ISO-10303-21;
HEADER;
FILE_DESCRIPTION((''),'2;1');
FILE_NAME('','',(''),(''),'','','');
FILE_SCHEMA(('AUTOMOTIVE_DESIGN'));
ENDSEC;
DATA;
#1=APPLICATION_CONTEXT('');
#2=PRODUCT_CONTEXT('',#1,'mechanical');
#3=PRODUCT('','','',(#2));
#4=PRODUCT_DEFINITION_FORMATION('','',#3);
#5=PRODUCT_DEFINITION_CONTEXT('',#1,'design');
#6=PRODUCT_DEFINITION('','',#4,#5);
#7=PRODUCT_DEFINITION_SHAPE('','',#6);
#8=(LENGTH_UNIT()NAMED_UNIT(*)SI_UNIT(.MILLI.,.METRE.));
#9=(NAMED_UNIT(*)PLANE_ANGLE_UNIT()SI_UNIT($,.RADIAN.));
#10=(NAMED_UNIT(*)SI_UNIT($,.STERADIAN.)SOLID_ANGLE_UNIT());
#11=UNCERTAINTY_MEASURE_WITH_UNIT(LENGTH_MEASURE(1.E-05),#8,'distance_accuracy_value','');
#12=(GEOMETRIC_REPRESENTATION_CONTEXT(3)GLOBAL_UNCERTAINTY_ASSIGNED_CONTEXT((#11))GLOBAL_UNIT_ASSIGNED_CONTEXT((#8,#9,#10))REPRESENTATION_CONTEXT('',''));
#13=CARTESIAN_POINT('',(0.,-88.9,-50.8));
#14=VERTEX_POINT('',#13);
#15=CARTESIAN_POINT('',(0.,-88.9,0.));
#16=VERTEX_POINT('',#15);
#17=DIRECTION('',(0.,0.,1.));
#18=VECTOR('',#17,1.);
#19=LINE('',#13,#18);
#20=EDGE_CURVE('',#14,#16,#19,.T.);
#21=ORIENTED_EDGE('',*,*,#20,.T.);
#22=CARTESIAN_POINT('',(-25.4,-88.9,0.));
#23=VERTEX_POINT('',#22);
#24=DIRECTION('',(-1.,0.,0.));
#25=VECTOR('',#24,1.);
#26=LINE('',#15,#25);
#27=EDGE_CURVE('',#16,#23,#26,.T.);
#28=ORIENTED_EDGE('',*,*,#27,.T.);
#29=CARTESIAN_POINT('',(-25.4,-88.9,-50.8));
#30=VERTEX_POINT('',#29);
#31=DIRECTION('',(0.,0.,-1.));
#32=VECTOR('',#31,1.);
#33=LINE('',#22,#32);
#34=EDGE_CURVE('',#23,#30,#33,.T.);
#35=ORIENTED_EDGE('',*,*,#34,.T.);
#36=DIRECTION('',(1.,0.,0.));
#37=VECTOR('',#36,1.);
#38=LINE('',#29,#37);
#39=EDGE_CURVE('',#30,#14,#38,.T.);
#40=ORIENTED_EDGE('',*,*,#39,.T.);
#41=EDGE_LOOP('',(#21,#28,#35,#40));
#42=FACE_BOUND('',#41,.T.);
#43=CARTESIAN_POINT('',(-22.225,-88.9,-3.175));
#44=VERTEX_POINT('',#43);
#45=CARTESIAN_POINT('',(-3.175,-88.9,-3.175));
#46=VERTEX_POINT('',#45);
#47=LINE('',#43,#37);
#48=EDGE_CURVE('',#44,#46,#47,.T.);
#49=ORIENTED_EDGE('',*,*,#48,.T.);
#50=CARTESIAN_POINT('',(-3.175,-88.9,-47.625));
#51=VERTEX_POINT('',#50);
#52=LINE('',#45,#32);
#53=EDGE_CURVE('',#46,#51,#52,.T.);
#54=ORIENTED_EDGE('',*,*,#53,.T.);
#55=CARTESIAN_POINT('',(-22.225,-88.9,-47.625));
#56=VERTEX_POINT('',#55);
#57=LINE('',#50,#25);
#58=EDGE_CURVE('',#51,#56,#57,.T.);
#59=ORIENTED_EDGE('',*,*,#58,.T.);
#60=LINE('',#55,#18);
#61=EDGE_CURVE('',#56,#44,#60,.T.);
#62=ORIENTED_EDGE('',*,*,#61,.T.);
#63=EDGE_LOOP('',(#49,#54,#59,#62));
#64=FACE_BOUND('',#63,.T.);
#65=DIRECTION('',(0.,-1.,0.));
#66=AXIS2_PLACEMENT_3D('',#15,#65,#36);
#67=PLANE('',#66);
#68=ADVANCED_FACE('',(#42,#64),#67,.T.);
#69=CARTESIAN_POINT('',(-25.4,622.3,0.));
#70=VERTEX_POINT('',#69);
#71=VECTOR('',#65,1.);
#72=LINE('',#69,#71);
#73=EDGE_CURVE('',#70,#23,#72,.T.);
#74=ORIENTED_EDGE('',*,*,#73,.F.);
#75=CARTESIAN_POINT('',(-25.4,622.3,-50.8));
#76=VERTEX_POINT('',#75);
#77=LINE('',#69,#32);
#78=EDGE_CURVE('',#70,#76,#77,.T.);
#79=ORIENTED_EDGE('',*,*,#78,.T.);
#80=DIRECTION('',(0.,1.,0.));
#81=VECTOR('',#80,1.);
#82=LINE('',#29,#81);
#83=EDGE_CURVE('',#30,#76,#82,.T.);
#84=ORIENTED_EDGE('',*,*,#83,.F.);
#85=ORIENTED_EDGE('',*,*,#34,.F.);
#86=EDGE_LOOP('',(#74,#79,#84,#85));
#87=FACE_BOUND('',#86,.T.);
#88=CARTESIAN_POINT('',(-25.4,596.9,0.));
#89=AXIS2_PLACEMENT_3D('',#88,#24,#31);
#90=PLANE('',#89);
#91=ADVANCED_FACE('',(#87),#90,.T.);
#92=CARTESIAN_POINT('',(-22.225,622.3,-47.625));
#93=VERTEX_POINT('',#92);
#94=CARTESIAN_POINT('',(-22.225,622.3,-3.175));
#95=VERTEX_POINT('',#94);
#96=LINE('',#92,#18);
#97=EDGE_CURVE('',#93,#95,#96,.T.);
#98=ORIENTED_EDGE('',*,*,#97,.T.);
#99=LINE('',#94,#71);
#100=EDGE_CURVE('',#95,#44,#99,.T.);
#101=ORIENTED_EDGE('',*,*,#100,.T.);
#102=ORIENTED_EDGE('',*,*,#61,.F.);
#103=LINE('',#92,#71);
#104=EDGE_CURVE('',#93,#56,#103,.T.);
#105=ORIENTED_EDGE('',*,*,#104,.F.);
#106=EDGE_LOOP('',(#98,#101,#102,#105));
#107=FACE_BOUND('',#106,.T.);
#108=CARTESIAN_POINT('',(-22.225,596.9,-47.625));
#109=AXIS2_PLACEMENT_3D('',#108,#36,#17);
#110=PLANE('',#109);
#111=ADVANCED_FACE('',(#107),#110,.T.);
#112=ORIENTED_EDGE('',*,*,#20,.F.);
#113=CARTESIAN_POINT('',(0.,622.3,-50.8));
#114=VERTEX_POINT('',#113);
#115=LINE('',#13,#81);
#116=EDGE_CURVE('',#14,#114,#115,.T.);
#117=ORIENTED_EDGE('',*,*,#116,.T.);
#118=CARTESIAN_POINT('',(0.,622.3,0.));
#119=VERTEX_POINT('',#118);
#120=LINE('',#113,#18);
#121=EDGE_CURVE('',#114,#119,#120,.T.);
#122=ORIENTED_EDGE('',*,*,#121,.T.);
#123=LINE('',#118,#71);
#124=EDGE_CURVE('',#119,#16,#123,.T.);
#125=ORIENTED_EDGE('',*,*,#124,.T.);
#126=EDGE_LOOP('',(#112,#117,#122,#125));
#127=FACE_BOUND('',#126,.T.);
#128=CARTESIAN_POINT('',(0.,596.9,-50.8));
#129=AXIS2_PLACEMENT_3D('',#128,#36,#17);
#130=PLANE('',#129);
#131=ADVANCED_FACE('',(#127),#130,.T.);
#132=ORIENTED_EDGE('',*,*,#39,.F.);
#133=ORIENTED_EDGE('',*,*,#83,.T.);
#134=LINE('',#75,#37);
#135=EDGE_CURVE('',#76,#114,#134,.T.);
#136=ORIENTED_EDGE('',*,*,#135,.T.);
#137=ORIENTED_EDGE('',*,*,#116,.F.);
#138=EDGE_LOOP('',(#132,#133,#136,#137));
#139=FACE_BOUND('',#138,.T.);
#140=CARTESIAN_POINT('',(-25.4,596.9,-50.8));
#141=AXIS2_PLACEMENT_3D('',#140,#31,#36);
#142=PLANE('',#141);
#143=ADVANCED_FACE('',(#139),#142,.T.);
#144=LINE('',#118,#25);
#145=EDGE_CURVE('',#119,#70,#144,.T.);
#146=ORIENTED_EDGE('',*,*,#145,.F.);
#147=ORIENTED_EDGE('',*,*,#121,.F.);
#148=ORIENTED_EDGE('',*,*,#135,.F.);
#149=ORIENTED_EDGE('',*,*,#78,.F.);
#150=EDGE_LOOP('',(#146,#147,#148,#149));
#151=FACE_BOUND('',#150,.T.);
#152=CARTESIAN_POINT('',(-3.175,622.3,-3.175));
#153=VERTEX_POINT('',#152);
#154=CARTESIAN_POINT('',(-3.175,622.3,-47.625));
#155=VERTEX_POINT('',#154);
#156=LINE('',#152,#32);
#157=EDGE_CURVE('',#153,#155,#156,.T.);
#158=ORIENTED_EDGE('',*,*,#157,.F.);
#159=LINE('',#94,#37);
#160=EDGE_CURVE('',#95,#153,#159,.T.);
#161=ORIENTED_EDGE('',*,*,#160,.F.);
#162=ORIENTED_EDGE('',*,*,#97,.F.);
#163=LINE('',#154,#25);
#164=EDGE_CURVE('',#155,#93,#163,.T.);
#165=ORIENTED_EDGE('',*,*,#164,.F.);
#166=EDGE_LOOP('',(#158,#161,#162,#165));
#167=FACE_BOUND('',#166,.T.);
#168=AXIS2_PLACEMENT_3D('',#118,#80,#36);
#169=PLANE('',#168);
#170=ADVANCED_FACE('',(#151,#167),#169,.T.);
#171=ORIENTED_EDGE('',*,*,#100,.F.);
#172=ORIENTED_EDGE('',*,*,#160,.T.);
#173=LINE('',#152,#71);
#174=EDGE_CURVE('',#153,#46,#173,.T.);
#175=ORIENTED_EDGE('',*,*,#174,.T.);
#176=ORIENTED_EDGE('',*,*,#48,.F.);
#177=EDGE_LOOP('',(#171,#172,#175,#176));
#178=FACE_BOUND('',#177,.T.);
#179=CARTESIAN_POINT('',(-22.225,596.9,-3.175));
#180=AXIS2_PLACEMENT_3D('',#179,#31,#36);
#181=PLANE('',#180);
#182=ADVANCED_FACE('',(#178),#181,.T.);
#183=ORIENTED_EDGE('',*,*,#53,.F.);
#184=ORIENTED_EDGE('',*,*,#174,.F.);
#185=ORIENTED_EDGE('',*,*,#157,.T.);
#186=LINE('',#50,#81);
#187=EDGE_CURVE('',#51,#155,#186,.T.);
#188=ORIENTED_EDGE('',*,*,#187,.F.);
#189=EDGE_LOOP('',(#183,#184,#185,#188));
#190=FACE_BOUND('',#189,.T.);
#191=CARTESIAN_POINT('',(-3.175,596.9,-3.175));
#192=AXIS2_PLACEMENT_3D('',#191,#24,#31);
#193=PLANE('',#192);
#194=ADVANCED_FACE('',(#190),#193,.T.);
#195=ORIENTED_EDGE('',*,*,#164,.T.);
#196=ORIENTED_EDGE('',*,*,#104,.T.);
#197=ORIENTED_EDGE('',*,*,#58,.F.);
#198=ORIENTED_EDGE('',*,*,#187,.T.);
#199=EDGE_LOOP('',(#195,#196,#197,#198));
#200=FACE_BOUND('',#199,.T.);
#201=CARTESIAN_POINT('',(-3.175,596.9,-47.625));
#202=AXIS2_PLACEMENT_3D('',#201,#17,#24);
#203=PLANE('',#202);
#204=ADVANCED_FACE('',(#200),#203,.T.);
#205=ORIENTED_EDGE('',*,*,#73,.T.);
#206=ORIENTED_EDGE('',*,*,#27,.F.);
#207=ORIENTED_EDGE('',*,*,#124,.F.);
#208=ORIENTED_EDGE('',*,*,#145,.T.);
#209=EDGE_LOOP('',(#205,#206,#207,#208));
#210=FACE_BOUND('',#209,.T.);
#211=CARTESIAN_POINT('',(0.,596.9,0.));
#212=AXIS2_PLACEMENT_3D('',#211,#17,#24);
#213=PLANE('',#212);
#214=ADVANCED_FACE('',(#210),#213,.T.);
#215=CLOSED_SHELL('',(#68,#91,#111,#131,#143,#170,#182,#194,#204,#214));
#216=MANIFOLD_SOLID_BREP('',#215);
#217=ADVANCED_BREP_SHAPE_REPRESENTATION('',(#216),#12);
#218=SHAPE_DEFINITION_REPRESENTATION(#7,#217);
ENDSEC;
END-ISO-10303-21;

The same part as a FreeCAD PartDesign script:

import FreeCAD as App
import Part
import Sketcher
from FreeCAD import Vector
Q = App.Units.Quantity

doc = App.newDocument("Part")
body = doc.addObject("PartDesign::Body", "Body")

sketch1 = body.newObject("Sketcher::SketchObject", "Sketch")
sketch1.AttachmentSupport = (doc.getObject("XZ_Plane"), [""])
sketch1.MapMode = "FlatFace"
sketch1.addGeometry(Part.LineSegment(Vector(-25.4, 0, 0), Vector(0, 0, 0)), False)
sketch1.addGeometry(Part.LineSegment(Vector(0, 0, 0), Vector(0, -50.8, 0)), False)
sketch1.addGeometry(Part.LineSegment(Vector(0, -50.8, 0), Vector(-25.4, -50.8, 0)), False)
sketch1.addGeometry(Part.LineSegment(Vector(-25.4, -50.8, 0), Vector(-25.4, 0, 0)), False)
sketch1.addGeometry(Part.LineSegment(Vector(-22.225, -3.175, 0), Vector(-22.225, -47.625, 0)), False)
sketch1.addGeometry(Part.LineSegment(Vector(-22.225, -47.625, 0), Vector(-3.175, -47.625, 0)), False)
sketch1.addGeometry(Part.LineSegment(Vector(-3.175, -47.625, 0), Vector(-3.175, -3.175, 0)), False)
sketch1.addGeometry(Part.LineSegment(Vector(-3.175, -3.175, 0), Vector(-22.225, -3.175, 0)), False)
sketch1.addConstraint(Sketcher.Constraint("Coincident", 0, 2, 1, 1))
sketch1.addConstraint(Sketcher.Constraint("Coincident", 1, 2, 2, 1))
sketch1.addConstraint(Sketcher.Constraint("Coincident", 2, 2, 3, 1))
sketch1.addConstraint(Sketcher.Constraint("Coincident", 3, 2, 0, 1))
sketch1.addConstraint(Sketcher.Constraint("Coincident", 4, 2, 5, 1))
sketch1.addConstraint(Sketcher.Constraint("Coincident", 5, 2, 6, 1))
sketch1.addConstraint(Sketcher.Constraint("Coincident", 6, 2, 7, 1))
sketch1.addConstraint(Sketcher.Constraint("Coincident", 7, 2, 4, 1))
sketch1.addConstraint(Sketcher.Constraint("Horizontal", 0))
sketch1.addConstraint(Sketcher.Constraint("Vertical", 1))
sketch1.addConstraint(Sketcher.Constraint("Horizontal", 2))
sketch1.addConstraint(Sketcher.Constraint("Vertical", 3))
sketch1.addConstraint(Sketcher.Constraint("Vertical", 4))
sketch1.addConstraint(Sketcher.Constraint("Horizontal", 5))
sketch1.addConstraint(Sketcher.Constraint("Vertical", 6))
sketch1.addConstraint(Sketcher.Constraint("Horizontal", 7))
sketch1.addConstraint(Sketcher.Constraint("Coincident", 0, 2, -1, 1))
sketch1.addConstraint(Sketcher.Constraint("DistanceX", 0, 1, 0, 2, Q("1 in")))
sketch1.addConstraint(Sketcher.Constraint("DistanceY", 1, 2, 1, 1, Q("2 in")))
sketch1.addConstraint(Sketcher.Constraint("DistanceX", 5, 2, -1, 1, Q("0.125 in")))
sketch1.addConstraint(Sketcher.Constraint("DistanceY", 6, 2, -1, 1, Q("0.125 in")))
sketch1.addConstraint(Sketcher.Constraint("DistanceX", 2, 2, 4, 2, Q("0.125 in")))
sketch1.addConstraint(Sketcher.Constraint("DistanceY", 2, 2, 4, 2, Q("0.125 in")))
pad1 = body.newObject("PartDesign::Pad", "Pad")
pad1.Profile = sketch1
pad1.Length = Q("21 in")
pad1.Reversed = True

sketch2 = body.newObject("Sketcher::SketchObject", "Sketch001")
sketch2.AttachmentSupport = (doc.getObject("XZ_Plane"), [""])
sketch2.MapMode = "FlatFace"
sketch2.addGeometry(Part.LineSegment(Vector(0, -50.8, 0), Vector(0, 0, 0)), False)
sketch2.addGeometry(Part.LineSegment(Vector(0, 0, 0), Vector(-25.4, 0, 0)), False)
sketch2.addGeometry(Part.LineSegment(Vector(-25.4, 0, 0), Vector(-25.4, -50.8, 0)), False)
sketch2.addGeometry(Part.LineSegment(Vector(-25.4, -50.8, 0), Vector(0, -50.8, 0)), False)
sketch2.addGeometry(Part.LineSegment(Vector(-3.175, -3.175, 0), Vector(-3.175, -47.625, 0)), False)
sketch2.addGeometry(Part.LineSegment(Vector(-3.175, -47.625, 0), Vector(-22.225, -47.625, 0)), False)
sketch2.addGeometry(Part.LineSegment(Vector(-22.225, -47.625, 0), Vector(-22.225, -3.175, 0)), False)
sketch2.addGeometry(Part.LineSegment(Vector(-22.225, -3.175, 0), Vector(-3.175, -3.175, 0)), False)
sketch2.addConstraint(Sketcher.Constraint("Coincident", 0, 2, 1, 1))
sketch2.addConstraint(Sketcher.Constraint("Coincident", 1, 2, 2, 1))
sketch2.addConstraint(Sketcher.Constraint("Coincident", 2, 2, 3, 1))
sketch2.addConstraint(Sketcher.Constraint("Coincident", 3, 2, 0, 1))
sketch2.addConstraint(Sketcher.Constraint("Coincident", 4, 2, 5, 1))
sketch2.addConstraint(Sketcher.Constraint("Coincident", 5, 2, 6, 1))
sketch2.addConstraint(Sketcher.Constraint("Coincident", 6, 2, 7, 1))
sketch2.addConstraint(Sketcher.Constraint("Coincident", 7, 2, 4, 1))
sketch2.addConstraint(Sketcher.Constraint("Vertical", 0))
sketch2.addConstraint(Sketcher.Constraint("Horizontal", 1))
sketch2.addConstraint(Sketcher.Constraint("Vertical", 2))
sketch2.addConstraint(Sketcher.Constraint("Horizontal", 3))
sketch2.addConstraint(Sketcher.Constraint("Vertical", 4))
sketch2.addConstraint(Sketcher.Constraint("Horizontal", 5))
sketch2.addConstraint(Sketcher.Constraint("Vertical", 6))
sketch2.addConstraint(Sketcher.Constraint("Horizontal", 7))
sketch2.addConstraint(Sketcher.Constraint("Coincident", 0, 2, -1, 1))
sketch2.addConstraint(Sketcher.Constraint("DistanceX", 1, 2, 1, 1, Q("1 in")))
sketch2.addConstraint(Sketcher.Constraint("DistanceY", 0, 1, 0, 2, Q("2 in")))
sketch2.addConstraint(Sketcher.Constraint("DistanceX", 5, 2, 5, 1, Q("0.75 in")))
sketch2.addConstraint(Sketcher.Constraint("DistanceY", 4, 2, 4, 1, Q("1.75 in")))
sketch2.addConstraint(Sketcher.Constraint("DistanceX", 4, 2, -1, 1, Q("0.125 in")))
sketch2.addConstraint(Sketcher.Constraint("DistanceY", 4, 2, -1, 1, Q("1.875 in")))
pad2 = body.newObject("PartDesign::Pad", "Pad001")
pad2.Profile = sketch2
pad2.Length = Q("3.5 in")

sketch3 = body.newObject("Sketcher::SketchObject", "Sketch002")
sketch3.AttachmentSupport = (doc.getObject("XZ_Plane"), [""])
sketch3.MapMode = "FlatFace"
sketch3.AttachmentOffset = App.Placement(Vector(0, 0, -21 * 25.4), App.Rotation())
sketch3.addGeometry(Part.LineSegment(Vector(-25.4, -50.8, 0), Vector(-25.4, 0, 0)), False)
sketch3.addGeometry(Part.LineSegment(Vector(-25.4, 0, 0), Vector(0, 0, 0)), False)
sketch3.addGeometry(Part.LineSegment(Vector(0, 0, 0), Vector(0, -50.8, 0)), False)
sketch3.addGeometry(Part.LineSegment(Vector(0, -50.8, 0), Vector(-25.4, -50.8, 0)), False)
sketch3.addGeometry(Part.LineSegment(Vector(-22.225, -3.175, 0), Vector(-22.225, -47.625, 0)), False)
sketch3.addGeometry(Part.LineSegment(Vector(-22.225, -47.625, 0), Vector(-3.175, -47.625, 0)), False)
sketch3.addGeometry(Part.LineSegment(Vector(-3.175, -47.625, 0), Vector(-3.175, -3.175, 0)), False)
sketch3.addGeometry(Part.LineSegment(Vector(-3.175, -3.175, 0), Vector(-22.225, -3.175, 0)), False)
sketch3.addConstraint(Sketcher.Constraint("Coincident", 0, 2, 1, 1))
sketch3.addConstraint(Sketcher.Constraint("Coincident", 1, 2, 2, 1))
sketch3.addConstraint(Sketcher.Constraint("Coincident", 2, 2, 3, 1))
sketch3.addConstraint(Sketcher.Constraint("Coincident", 3, 2, 0, 1))
sketch3.addConstraint(Sketcher.Constraint("Coincident", 4, 2, 5, 1))
sketch3.addConstraint(Sketcher.Constraint("Coincident", 5, 2, 6, 1))
sketch3.addConstraint(Sketcher.Constraint("Coincident", 6, 2, 7, 1))
sketch3.addConstraint(Sketcher.Constraint("Coincident", 7, 2, 4, 1))
sketch3.addConstraint(Sketcher.Constraint("Vertical", 0))
sketch3.addConstraint(Sketcher.Constraint("Horizontal", 1))
sketch3.addConstraint(Sketcher.Constraint("Vertical", 2))
sketch3.addConstraint(Sketcher.Constraint("Horizontal", 3))
sketch3.addConstraint(Sketcher.Constraint("Vertical", 4))
sketch3.addConstraint(Sketcher.Constraint("Horizontal", 5))
sketch3.addConstraint(Sketcher.Constraint("Vertical", 6))
sketch3.addConstraint(Sketcher.Constraint("Horizontal", 7))
sketch3.addConstraint(Sketcher.Constraint("Coincident", 1, 2, -1, 1))
sketch3.addConstraint(Sketcher.Constraint("DistanceX", 1, 1, 1, 2, Q("1 in")))
sketch3.addConstraint(Sketcher.Constraint("DistanceY", 0, 1, 0, 2, Q("2 in")))
sketch3.addConstraint(Sketcher.Constraint("DistanceX", 5, 1, 5, 2, Q("0.75 in")))
sketch3.addConstraint(Sketcher.Constraint("DistanceY", 4, 2, 4, 1, Q("1.75 in")))
sketch3.addConstraint(Sketcher.Constraint("DistanceX", 4, 2, -1, 1, Q("0.875 in")))
sketch3.addConstraint(Sketcher.Constraint("DistanceY", 4, 2, -1, 1, Q("1.875 in")))
pad3 = body.newObject("PartDesign::Pad", "Pad002")
pad3.Profile = sketch3
pad3.Length = Q("3.5 in")
pad3.Reversed = True

sketch4 = body.newObject("Sketcher::SketchObject", "Sketch003")
sketch4.AttachmentSupport = (doc.getObject("YZ_Plane"), [""])
sketch4.MapMode = "FlatFace"
sketch4.addGeometry(Part.LineSegment(Vector(622.3, -50.8, 0), Vector(622.3, 0, 0)), False)
sketch4.addGeometry(Part.LineSegment(Vector(622.3, 0, 0), Vector(596.9, 0, 0)), False)
sketch4.addGeometry(Part.LineSegment(Vector(596.9, 0, 0), Vector(596.9, -50.8, 0)), False)
sketch4.addGeometry(Part.LineSegment(Vector(596.9, -50.8, 0), Vector(622.3, -50.8, 0)), False)
sketch4.addConstraint(Sketcher.Constraint("Coincident", 0, 2, 1, 1))
sketch4.addConstraint(Sketcher.Constraint("Coincident", 1, 2, 2, 1))
sketch4.addConstraint(Sketcher.Constraint("Coincident", 2, 2, 3, 1))
sketch4.addConstraint(Sketcher.Constraint("Coincident", 3, 2, 0, 1))
sketch4.addConstraint(Sketcher.Constraint("Vertical", 0))
sketch4.addConstraint(Sketcher.Constraint("Horizontal", 1))
sketch4.addConstraint(Sketcher.Constraint("Vertical", 2))
sketch4.addConstraint(Sketcher.Constraint("Horizontal", 3))
sketch4.addConstraint(Sketcher.Constraint("PointOnObject", 0, 2, -1))
sketch4.addConstraint(Sketcher.Constraint("DistanceX", 1, 2, 1, 1, Q("1 in")))
sketch4.addConstraint(Sketcher.Constraint("DistanceY", 0, 1, 0, 2, Q("2 in")))
sketch4.addConstraint(Sketcher.Constraint("DistanceX", -1, 1, 0, 2, Q("24.5 in")))
pocket1 = body.newObject("PartDesign::Pocket", "Pocket")
pocket1.Profile = sketch4
pocket1.Length = Q("1 in")

sketch5 = body.newObject("Sketcher::SketchObject", "Sketch004")
sketch5.AttachmentSupport = (doc.getObject("XZ_Plane"), [""])
sketch5.MapMode = "FlatFace"
sketch5.AttachmentOffset = App.Placement(Vector(0, 0, -23.5 * 25.4), App.Rotation())
sketch5.addGeometry(Part.LineSegment(Vector(0, 0, 0), Vector(0, -50.8, 0)), False)
sketch5.addGeometry(Part.LineSegment(Vector(0, -50.8, 0), Vector(-25.4, -50.8, 0)), False)
sketch5.addGeometry(Part.LineSegment(Vector(-25.4, -50.8, 0), Vector(-25.4, 0, 0)), False)
sketch5.addGeometry(Part.LineSegment(Vector(-25.4, 0, 0), Vector(0, 0, 0)), False)
sketch5.addGeometry(Part.LineSegment(Vector(-22.225, -47.625, 0), Vector(-3.175, -47.625, 0)), False)
sketch5.addGeometry(Part.LineSegment(Vector(-3.175, -47.625, 0), Vector(-3.175, -3.175, 0)), False)
sketch5.addGeometry(Part.LineSegment(Vector(-3.175, -3.175, 0), Vector(-22.225, -3.175, 0)), False)
sketch5.addGeometry(Part.LineSegment(Vector(-22.225, -3.175, 0), Vector(-22.225, -47.625, 0)), False)
sketch5.addConstraint(Sketcher.Constraint("Coincident", 0, 2, 1, 1))
sketch5.addConstraint(Sketcher.Constraint("Coincident", 1, 2, 2, 1))
sketch5.addConstraint(Sketcher.Constraint("Coincident", 2, 2, 3, 1))
sketch5.addConstraint(Sketcher.Constraint("Coincident", 3, 2, 0, 1))
sketch5.addConstraint(Sketcher.Constraint("Coincident", 4, 2, 5, 1))
sketch5.addConstraint(Sketcher.Constraint("Coincident", 5, 2, 6, 1))
sketch5.addConstraint(Sketcher.Constraint("Coincident", 6, 2, 7, 1))
sketch5.addConstraint(Sketcher.Constraint("Coincident", 7, 2, 4, 1))
sketch5.addConstraint(Sketcher.Constraint("Vertical", 0))
sketch5.addConstraint(Sketcher.Constraint("Horizontal", 1))
sketch5.addConstraint(Sketcher.Constraint("Vertical", 2))
sketch5.addConstraint(Sketcher.Constraint("Horizontal", 3))
sketch5.addConstraint(Sketcher.Constraint("Horizontal", 4))
sketch5.addConstraint(Sketcher.Constraint("Vertical", 5))
sketch5.addConstraint(Sketcher.Constraint("Horizontal", 6))
sketch5.addConstraint(Sketcher.Constraint("Vertical", 7))
sketch5.addConstraint(Sketcher.Constraint("Coincident", 3, 2, -1, 1))
sketch5.addConstraint(Sketcher.Constraint("DistanceX", 1, 2, 1, 1, Q("1 in")))
sketch5.addConstraint(Sketcher.Constraint("DistanceY", 0, 2, 0, 1, Q("2 in")))
sketch5.addConstraint(Sketcher.Constraint("DistanceX", 4, 1, 4, 2, Q("0.75 in")))
sketch5.addConstraint(Sketcher.Constraint("DistanceY", 5, 1, 5, 2, Q("1.75 in")))
sketch5.addConstraint(Sketcher.Constraint("DistanceX", 4, 2, -1, 1, Q("0.125 in")))
sketch5.addConstraint(Sketcher.Constraint("DistanceY", 4, 2, -1, 1, Q("1.875 in")))
pad4 = body.newObject("PartDesign::Pad", "Pad003")
pad4.Profile = sketch5
pad4.Length = Q("1 in")
pad4.Reversed = True

doc.recompute()
